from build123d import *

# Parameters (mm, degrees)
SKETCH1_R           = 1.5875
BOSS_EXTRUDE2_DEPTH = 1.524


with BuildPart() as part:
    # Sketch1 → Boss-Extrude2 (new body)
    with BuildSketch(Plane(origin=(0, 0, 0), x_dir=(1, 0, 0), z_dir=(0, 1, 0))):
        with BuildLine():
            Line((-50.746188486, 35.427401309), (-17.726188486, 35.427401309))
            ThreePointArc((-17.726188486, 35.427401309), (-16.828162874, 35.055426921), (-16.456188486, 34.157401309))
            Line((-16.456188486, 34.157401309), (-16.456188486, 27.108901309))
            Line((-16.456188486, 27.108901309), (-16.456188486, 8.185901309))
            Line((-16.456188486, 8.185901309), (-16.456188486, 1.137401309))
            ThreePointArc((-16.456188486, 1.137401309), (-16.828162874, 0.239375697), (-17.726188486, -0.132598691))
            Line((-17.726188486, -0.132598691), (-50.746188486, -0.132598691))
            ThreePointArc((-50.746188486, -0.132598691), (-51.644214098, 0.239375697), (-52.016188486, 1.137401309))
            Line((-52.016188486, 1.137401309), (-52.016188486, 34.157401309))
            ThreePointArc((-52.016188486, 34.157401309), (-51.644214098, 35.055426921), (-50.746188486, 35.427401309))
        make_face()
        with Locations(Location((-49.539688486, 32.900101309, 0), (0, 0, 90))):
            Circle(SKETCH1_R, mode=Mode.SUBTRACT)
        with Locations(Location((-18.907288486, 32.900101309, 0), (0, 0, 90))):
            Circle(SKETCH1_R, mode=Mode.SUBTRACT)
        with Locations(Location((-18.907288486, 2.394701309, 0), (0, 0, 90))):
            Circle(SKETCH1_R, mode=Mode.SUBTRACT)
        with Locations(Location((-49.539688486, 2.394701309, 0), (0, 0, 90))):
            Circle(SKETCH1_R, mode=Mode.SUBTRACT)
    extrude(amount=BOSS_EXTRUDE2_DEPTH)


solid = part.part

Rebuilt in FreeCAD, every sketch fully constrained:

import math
import FreeCAD as App
import Part
import Sketcher

V = App.Vector
Q = App.Units.Quantity

doc = App.newDocument("Part")
body = doc.addObject("PartDesign::Body", "Body")

# Sketch on XZ plane
sketch1 = body.newObject("Sketcher::SketchObject", "Sketch")
sketch1.AttachmentSupport = (doc.getObject("XZ_Plane"), [""])
sketch1.MapMode = "FlatFace"
sketch1.addGeometry([
    Part.LineSegment(V(-17.726188, -35.427401, 0), V(-50.746188, -35.427401, 0)),  # 0
    Part.ArcOfCircle(Part.Circle(V(-50.746188, -34.157401, 0), V(0, 0, 1), 1.27), math.radians(180), math.radians(270)),  # 1
    Part.LineSegment(V(-52.016188, -34.157401, 0), V(-52.016188, -1.137401, 0)),  # 2
    Part.ArcOfCircle(Part.Circle(V(-50.746188, -1.137401, 0), V(0, 0, 1), 1.27), math.radians(90), math.radians(180)),  # 3
    Part.LineSegment(V(-50.746188, 0.132599, 0), V(-17.726188, 0.132599, 0)),  # 4
    Part.ArcOfCircle(Part.Circle(V(-17.726188, -1.137401, 0), V(0, 0, 1), 1.27), math.radians(0), math.radians(90)),  # 5
    Part.LineSegment(V(-16.456188, -1.137401, 0), V(-16.456188, -34.157401, 0)),  # 6
    Part.ArcOfCircle(Part.Circle(V(-17.726188, -34.157401, 0), V(0, 0, 1), 1.27), math.radians(-90), math.radians(0)),  # 7
    Part.Circle(V(-18.907288, -2.394701, 0), V(0, 0, 1), 1.5875),  # 8
    Part.Circle(V(-49.539688, -2.394701, 0), V(0, 0, 1), 1.5875),  # 9
    Part.Circle(V(-18.907288, -32.900101, 0), V(0, 0, 1), 1.5875),  # 10
    Part.Circle(V(-49.539688, -32.900101, 0), V(0, 0, 1), 1.5875),  # 11
], False)
sketch1.addConstraint([
    Sketcher.Constraint("Tangent", 0, 2, 1, 2),
    Sketcher.Constraint("Tangent", 1, 1, 2, 1),
    Sketcher.Constraint("Tangent", 2, 2, 3, 2),
    Sketcher.Constraint("Tangent", 3, 1, 4, 1),
    Sketcher.Constraint("Tangent", 4, 2, 5, 2),
    Sketcher.Constraint("Tangent", 5, 1, 6, 1),
    Sketcher.Constraint("Tangent", 6, 2, 7, 2),
    Sketcher.Constraint("Tangent", 7, 1, 0, 1),
    Sketcher.Constraint("Horizontal", 0),
    Sketcher.Constraint("Vertical", 2),
    Sketcher.Constraint("Horizontal", 4),
    Sketcher.Constraint("Vertical", 6),
    Sketcher.Constraint("Equal", 1, 3),
    Sketcher.Constraint("Equal", 3, 5),
    Sketcher.Constraint("Equal", 5, 7),
    Sketcher.Constraint("Equal", 8, 9),
    Sketcher.Constraint("Equal", 9, 10),
    Sketcher.Constraint("Equal", 10, 11),
    Sketcher.Constraint("Horizontal", 8, 3, 9, 3),
    Sketcher.Constraint("Horizontal", 10, 3, 11, 3),
    Sketcher.Constraint("Vertical", 8, 3, 10, 3),
    Sketcher.Constraint("Vertical", 9, 3, 11, 3),
    Sketcher.Constraint("Equal", 4, 2),
    Sketcher.Constraint("Radius", 1, Q("0.05 in")),
    Sketcher.Constraint("Diameter", 8, Q("0.125 in")),
    Sketcher.Constraint("DistanceX", 0, 2, 0, 1, Q("1.3 in")),
    Sketcher.Constraint("DistanceX", 9, 3, 8, 3, Q("1.206 in")),
    Sketcher.Constraint("DistanceY", 10, 3, 8, 3, Q("1.201 in")),
    Sketcher.Constraint("DistanceX", 8, 3, 5, 3, Q("0.0465 in")),
    Sketcher.Constraint("DistanceY", 8, 3, 5, 3, Q("0.0495 in")),
    Sketcher.Constraint("DistanceY", 1, 3, -1, 1, 34.157401),
    Sketcher.Constraint("DistanceX", 1, 3, -1, 1, 50.746188),
])
pad1 = body.newObject("PartDesign::Pad", "Pad")
pad1.Profile = sketch1
pad1.Length = Q("0.06 in")
pad1.Reversed = True

doc.recompute()
